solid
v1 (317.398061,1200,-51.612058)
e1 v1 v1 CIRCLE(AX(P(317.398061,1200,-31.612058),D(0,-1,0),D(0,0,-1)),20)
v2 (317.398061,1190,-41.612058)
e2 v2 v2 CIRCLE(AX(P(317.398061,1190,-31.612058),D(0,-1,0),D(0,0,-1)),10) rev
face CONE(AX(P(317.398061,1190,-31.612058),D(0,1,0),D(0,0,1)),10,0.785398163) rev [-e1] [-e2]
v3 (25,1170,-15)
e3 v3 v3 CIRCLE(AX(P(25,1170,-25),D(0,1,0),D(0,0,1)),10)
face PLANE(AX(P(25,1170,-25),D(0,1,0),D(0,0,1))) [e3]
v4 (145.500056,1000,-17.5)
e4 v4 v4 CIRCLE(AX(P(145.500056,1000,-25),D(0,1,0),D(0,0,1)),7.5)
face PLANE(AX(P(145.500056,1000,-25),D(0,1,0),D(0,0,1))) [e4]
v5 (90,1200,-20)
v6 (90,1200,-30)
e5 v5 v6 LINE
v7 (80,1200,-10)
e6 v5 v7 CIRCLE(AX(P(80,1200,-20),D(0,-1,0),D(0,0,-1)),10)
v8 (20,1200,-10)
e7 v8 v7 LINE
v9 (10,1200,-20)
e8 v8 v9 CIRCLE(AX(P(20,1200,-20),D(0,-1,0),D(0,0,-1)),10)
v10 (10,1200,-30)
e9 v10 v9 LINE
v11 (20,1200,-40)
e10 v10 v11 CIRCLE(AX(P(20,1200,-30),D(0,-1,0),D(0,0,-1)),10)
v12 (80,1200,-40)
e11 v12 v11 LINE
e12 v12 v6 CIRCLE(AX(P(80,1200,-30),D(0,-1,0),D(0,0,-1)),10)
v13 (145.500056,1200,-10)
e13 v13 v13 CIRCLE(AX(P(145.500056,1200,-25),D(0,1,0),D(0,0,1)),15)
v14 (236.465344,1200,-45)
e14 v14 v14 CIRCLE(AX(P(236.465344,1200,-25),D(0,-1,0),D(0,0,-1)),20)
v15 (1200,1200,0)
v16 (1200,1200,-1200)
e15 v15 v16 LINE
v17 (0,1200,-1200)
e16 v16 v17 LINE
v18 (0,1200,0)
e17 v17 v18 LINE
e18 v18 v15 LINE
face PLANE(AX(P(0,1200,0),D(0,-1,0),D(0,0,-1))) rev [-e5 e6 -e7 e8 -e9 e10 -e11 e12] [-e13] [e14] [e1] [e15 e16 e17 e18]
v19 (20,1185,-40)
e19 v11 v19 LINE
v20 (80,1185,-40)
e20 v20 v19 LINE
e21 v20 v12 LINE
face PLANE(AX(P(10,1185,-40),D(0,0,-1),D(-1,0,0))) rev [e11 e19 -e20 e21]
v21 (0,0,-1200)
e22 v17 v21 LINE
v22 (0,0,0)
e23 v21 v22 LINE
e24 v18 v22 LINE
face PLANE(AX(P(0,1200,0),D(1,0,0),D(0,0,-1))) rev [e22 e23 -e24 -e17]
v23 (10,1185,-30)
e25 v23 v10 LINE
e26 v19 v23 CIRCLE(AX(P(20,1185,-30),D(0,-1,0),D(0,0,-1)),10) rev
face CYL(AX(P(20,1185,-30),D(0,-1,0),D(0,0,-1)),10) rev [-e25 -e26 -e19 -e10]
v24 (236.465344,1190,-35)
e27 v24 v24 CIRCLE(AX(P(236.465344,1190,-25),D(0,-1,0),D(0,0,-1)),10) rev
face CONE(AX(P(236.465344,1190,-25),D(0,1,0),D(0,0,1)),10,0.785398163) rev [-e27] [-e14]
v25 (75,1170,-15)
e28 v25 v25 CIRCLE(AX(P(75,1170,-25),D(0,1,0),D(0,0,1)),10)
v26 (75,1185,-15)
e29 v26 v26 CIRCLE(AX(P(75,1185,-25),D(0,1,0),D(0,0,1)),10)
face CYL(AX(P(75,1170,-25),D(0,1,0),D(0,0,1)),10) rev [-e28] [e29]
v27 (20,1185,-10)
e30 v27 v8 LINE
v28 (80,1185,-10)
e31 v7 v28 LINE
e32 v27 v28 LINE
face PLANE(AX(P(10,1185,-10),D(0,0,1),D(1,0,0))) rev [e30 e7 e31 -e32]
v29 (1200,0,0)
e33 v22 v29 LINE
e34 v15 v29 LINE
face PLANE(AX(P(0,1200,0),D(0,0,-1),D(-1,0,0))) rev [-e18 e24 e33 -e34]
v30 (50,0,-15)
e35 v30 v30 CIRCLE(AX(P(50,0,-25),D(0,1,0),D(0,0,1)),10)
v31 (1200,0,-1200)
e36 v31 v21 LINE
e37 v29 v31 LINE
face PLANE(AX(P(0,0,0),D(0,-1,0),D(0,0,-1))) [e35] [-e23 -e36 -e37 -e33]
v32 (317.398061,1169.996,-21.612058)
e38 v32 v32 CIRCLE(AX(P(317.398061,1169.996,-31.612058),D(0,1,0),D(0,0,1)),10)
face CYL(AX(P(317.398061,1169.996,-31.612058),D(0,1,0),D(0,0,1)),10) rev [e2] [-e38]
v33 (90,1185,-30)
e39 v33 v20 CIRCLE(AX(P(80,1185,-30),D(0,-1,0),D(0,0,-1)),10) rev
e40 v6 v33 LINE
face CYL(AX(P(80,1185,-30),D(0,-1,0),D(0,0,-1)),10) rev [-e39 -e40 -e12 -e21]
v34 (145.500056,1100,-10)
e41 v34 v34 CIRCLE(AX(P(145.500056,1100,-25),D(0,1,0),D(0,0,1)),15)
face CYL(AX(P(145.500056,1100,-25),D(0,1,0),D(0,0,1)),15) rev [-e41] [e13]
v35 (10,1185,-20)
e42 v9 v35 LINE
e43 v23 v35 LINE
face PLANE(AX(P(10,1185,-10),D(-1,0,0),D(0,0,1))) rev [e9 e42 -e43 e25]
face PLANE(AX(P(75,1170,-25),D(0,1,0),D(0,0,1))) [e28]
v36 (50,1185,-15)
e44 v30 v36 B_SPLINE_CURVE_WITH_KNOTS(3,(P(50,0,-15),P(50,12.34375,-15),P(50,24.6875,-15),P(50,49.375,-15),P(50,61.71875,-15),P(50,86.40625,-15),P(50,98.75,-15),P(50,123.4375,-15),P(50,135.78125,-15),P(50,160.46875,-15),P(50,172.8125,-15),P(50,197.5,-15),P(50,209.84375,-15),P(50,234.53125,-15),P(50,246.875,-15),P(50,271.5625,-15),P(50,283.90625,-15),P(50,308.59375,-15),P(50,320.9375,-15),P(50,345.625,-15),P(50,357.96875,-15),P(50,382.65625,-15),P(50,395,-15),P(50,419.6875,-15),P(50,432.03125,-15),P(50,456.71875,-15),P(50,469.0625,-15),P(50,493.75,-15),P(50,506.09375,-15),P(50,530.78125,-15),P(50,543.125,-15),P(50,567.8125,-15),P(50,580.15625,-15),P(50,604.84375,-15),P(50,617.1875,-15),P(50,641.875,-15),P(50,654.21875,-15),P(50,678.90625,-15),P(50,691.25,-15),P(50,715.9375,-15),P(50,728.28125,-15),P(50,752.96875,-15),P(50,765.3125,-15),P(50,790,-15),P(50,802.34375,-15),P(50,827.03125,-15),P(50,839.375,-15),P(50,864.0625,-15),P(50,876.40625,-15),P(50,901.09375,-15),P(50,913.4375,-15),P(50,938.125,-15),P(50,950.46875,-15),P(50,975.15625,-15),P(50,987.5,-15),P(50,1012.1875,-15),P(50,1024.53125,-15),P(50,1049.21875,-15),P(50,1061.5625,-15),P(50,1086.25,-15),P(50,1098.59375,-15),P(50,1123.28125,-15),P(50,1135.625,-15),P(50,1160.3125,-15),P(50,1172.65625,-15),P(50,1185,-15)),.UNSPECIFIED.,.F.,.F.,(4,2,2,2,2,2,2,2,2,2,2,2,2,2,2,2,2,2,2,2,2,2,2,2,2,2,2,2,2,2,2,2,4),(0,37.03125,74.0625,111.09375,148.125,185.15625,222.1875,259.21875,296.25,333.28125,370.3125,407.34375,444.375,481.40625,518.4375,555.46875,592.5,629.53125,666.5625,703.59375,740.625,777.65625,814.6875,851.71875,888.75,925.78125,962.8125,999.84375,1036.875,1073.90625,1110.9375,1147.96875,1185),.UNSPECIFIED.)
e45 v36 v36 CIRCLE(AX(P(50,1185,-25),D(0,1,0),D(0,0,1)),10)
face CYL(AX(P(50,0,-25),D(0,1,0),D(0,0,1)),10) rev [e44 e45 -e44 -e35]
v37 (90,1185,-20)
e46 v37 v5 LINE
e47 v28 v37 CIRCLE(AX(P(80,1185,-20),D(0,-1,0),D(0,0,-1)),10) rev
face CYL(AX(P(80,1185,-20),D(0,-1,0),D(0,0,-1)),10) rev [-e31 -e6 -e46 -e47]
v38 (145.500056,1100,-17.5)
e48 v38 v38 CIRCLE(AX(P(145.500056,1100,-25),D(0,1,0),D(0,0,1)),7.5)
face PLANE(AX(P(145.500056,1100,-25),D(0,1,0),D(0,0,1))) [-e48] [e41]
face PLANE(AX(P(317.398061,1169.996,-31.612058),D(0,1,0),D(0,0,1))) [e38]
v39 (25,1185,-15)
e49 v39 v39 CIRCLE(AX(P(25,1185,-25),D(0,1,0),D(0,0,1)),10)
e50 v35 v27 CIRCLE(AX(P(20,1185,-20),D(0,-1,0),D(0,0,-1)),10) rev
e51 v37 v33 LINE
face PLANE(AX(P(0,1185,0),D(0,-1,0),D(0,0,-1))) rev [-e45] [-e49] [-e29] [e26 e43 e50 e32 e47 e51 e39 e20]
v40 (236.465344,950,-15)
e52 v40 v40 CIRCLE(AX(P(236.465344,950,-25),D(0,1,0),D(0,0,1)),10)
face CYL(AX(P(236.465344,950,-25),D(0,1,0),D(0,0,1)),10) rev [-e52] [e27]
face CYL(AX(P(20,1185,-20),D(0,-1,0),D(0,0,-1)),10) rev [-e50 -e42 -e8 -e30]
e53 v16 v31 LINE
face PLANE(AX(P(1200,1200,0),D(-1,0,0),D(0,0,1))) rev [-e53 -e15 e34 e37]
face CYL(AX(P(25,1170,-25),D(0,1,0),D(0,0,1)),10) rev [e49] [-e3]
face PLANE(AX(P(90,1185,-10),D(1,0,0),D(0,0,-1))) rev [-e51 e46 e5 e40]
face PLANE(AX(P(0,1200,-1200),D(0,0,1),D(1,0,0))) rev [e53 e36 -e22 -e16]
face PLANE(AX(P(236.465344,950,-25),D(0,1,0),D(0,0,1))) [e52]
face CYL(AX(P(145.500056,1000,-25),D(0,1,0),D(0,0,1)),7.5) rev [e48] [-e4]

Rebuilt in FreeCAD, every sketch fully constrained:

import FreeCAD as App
import Part
import Sketcher
from FreeCAD import Vector
Q = App.Units.Quantity


def edges_at(feature, points):
    """Names of the edges that pass closest to the given points."""
    edges = feature.Shape.Edges
    near = lambda p: min(range(len(edges)), key=lambda i: edges[i].distToShape(Part.Vertex(*p))[0])
    return sorted({f"Edge{near(p) + 1}" for p in points})

doc = App.newDocument("Part")
params = doc.addObject("Spreadsheet::Sheet", "Params")
for row, (alias, value) in enumerate([
    ("sketch1_width", "1200 mm"),
    ("pad1_length", "1200 mm"),
    ("sketch2_width", "80 mm"),
    ("sketch2_height", "30 mm"),
    ("pocket1_length", "15 mm"),
    ("fillet_radius", "10 mm"),
    ("sketch3_diameter", "20 mm"),
    ("pocket2_length", "15 mm"),
    ("sketch4_diameter", "20 mm"),
    ("sketch5_diameter", "30 mm"),
    ("pocket4_length", "100 mm"),
    ("sketch6_diameter", "15 mm"),
    ("pocket5_length", "100 mm"),
    ("sketch7_diameter", "20 mm"),
    ("pocket6_length", "250 mm"),
    ("chamfer_size", "10 mm"),
    ("sketch8_diameter", "20 mm"),
    ("pocket7_length", "30.004 mm"),
    ("chamfer2_size", "10 mm"),
], start=1):
    params.set(f"A{row}", alias)
    params.set(f"B{row}", "=" + value)
    params.setAlias(f"B{row}", alias)

body = doc.addObject("PartDesign::Body", "Body")

sketch1 = doc.addObject("Sketcher::SketchObject", "Sketch")
body.addObject(sketch1)
sketch1.AttachmentSupport = (doc.XZ_Plane, [""])
sketch1.MapMode = "FlatFace"
sketch1.addGeometry([
    Part.LineSegment(Vector(0, -1200, 0), Vector(0, 0, 0)),
    Part.LineSegment(Vector(0, 0, 0), Vector(1200, 0, 0)),
    Part.LineSegment(Vector(1200, 0, 0), Vector(1200, -1200, 0)),
    Part.LineSegment(Vector(1200, -1200, 0), Vector(0, -1200, 0)),
], False)
sketch1.addConstraint([
    Sketcher.Constraint("Coincident", 0, 2, 1, 1),
    Sketcher.Constraint("Coincident", 1, 2, 2, 1),
    Sketcher.Constraint("Coincident", 2, 2, 3, 1),
    Sketcher.Constraint("Coincident", 3, 2, 0, 1),
    Sketcher.Constraint("Vertical", 0),
    Sketcher.Constraint("Horizontal", 1),
    Sketcher.Constraint("Vertical", 2),
    Sketcher.Constraint("Horizontal", 3),
    Sketcher.Constraint("Coincident", 0, 2, -1, 1),
    Sketcher.Constraint("Equal", 3, 0),
    Sketcher.Constraint("DistanceX", 1, 1, 1, 2, Q("1200 mm")),
])
sketch1.setExpression("Constraints[10]", "Params.sketch1_width")
pad1 = doc.addObject("PartDesign::Pad", "Pad")
body.addObject(pad1)
pad1.Profile = sketch1
pad1.setExpression("Length", "Params.pad1_length")
pad1.Reversed = True

sketch2 = doc.addObject("Sketcher::SketchObject", "Sketch001")
body.addObject(sketch2)
sketch2.AttachmentSupport = (doc.XZ_Plane, [""])
sketch2.MapMode = "FlatFace"
sketch2.AttachmentOffset = App.Placement(Vector(0, 0, -1200), App.Rotation())
sketch2.addGeometry([
    Part.LineSegment(Vector(10, -40, 0), Vector(10, -10, 0)),
    Part.LineSegment(Vector(10, -10, 0), Vector(90, -10, 0)),
    Part.LineSegment(Vector(90, -10, 0), Vector(90, -40, 0)),
    Part.LineSegment(Vector(90, -40, 0), Vector(10, -40, 0)),
], False)
sketch2.addConstraint([
    Sketcher.Constraint("Coincident", 0, 2, 1, 1),
    Sketcher.Constraint("Coincident", 1, 2, 2, 1),
    Sketcher.Constraint("Coincident", 2, 2, 3, 1),
    Sketcher.Constraint("Coincident", 3, 2, 0, 1),
    Sketcher.Constraint("Vertical", 0),
    Sketcher.Constraint("Horizontal", 1),
    Sketcher.Constraint("Vertical", 2),
    Sketcher.Constraint("Horizontal", 3),
    Sketcher.Constraint("DistanceX", 1, 1, 1, 2, Q("80 mm")),
    Sketcher.Constraint("DistanceY", 0, 1, 0, 2, Q("30 mm")),
    Sketcher.Constraint("DistanceX", -1, 1, 0, 2, Q("10 mm")),
    Sketcher.Constraint("DistanceY", 0, 2, -1, 1, Q("10 mm")),
])
sketch2.setExpression("Constraints[8]", "Params.sketch2_width")
sketch2.setExpression("Constraints[9]", "Params.sketch2_height")
pocket1 = doc.addObject("PartDesign::Pocket", "Pocket")
body.addObject(pocket1)
pocket1.Profile = sketch2
pocket1.setExpression("Length", "Params.pocket1_length")
pocket1.Reversed = True
doc.recompute()

fillet = doc.addObject("PartDesign::Fillet", "Fillet")
body.addObject(fillet)
fillet.Base = (pocket1, edges_at(pocket1, [
    (10, 1192.5, -10),
    (10, 1192.5, -40),
    (90, 1192.5, -40),
    (90, 1192.5, -10),
]))
fillet.setExpression("Radius", "Params.fillet_radius")

sketch3 = doc.addObject("Sketcher::SketchObject", "Sketch002")
body.addObject(sketch3)
sketch3.AttachmentSupport = (doc.XZ_Plane, [""])
sketch3.MapMode = "FlatFace"
sketch3.AttachmentOffset = App.Placement(Vector(0, 0, -1185), App.Rotation())
sketch3.addGeometry([
    Part.Circle(Vector(25, -25, 0), Vector(0, 0, 1), 10),
    Part.Circle(Vector(75, -25, 0), Vector(0, 0, 1), 10),
], False)
sketch3.addConstraint([
    Sketcher.Constraint("Equal", 0, 1),
    Sketcher.Constraint("Horizontal", 0, 3, 1, 3),
    Sketcher.Constraint("Diameter", 0, Q("20 mm")),
    Sketcher.Constraint("DistanceX", -1, 1, 0, 3, Q("25 mm")),
    Sketcher.Constraint("DistanceY", 0, 3, -1, 1, Q("25 mm")),
    Sketcher.Constraint("DistanceX", -1, 1, 1, 3, Q("75 mm")),
])
sketch3.setExpression("Constraints[2]", "Params.sketch3_diameter")
pocket2 = doc.addObject("PartDesign::Pocket", "Pocket001")
body.addObject(pocket2)
pocket2.Profile = sketch3
pocket2.setExpression("Length", "Params.pocket2_length")
pocket2.Reversed = True

sketch4 = doc.addObject("Sketcher::SketchObject", "Sketch003")
body.addObject(sketch4)
sketch4.AttachmentSupport = (doc.XZ_Plane, [""])
sketch4.MapMode = "FlatFace"
sketch4.AttachmentOffset = App.Placement(Vector(0, 0, -1185), App.Rotation())
sketch4.addGeometry(Part.Circle(Vector(50, -25, 0), Vector(0, 0, 1), 10), False)
sketch4.addConstraint([
    Sketcher.Constraint("Diameter", 0, Q("20 mm")),
    Sketcher.Constraint("DistanceX", -1, 1, 0, 3, Q("50 mm")),
    Sketcher.Constraint("DistanceY", 0, 3, -1, 1, Q("25 mm")),
])
sketch4.setExpression("Constraints[0]", "Params.sketch4_diameter")
pocket3 = doc.addObject("PartDesign::Pocket", "Pocket002")
body.addObject(pocket3)
pocket3.Profile = sketch4
pocket3.Type = "ThroughAll"
pocket3.Reversed = True

sketch5 = doc.addObject("Sketcher::SketchObject", "Sketch004")
body.addObject(sketch5)
sketch5.AttachmentSupport = (doc.XZ_Plane, [""])
sketch5.MapMode = "FlatFace"
sketch5.AttachmentOffset = App.Placement(Vector(0, 0, -1200), App.Rotation())
sketch5.addGeometry(Part.Circle(Vector(146, -25, 0), Vector(0, 0, 1), 15), False)
sketch5.addConstraint([
    Sketcher.Constraint("Diameter", 0, Q("30 mm")),
    Sketcher.Constraint("DistanceY", 0, 3, -1, 1, Q("25 mm")),
    Sketcher.Constraint("DistanceX", -1, 1, 0, 3, Q("145.500056 mm")),
])
sketch5.setExpression("Constraints[0]", "Params.sketch5_diameter")
pocket4 = doc.addObject("PartDesign::Pocket", "Pocket003")
body.addObject(pocket4)
pocket4.Profile = sketch5
pocket4.setExpression("Length", "Params.pocket4_length")
pocket4.Reversed = True

sketch6 = doc.addObject("Sketcher::SketchObject", "Sketch005")
body.addObject(sketch6)
sketch6.AttachmentSupport = (doc.XZ_Plane, [""])
sketch6.MapMode = "FlatFace"
sketch6.AttachmentOffset = App.Placement(Vector(0, 0, -1100), App.Rotation())
sketch6.addGeometry(Part.Circle(Vector(146, -25, 0), Vector(0, 0, 1), 8), False)
sketch6.addConstraint([
    Sketcher.Constraint("Diameter", 0, Q("15 mm")),
    Sketcher.Constraint("DistanceY", 0, 3, -1, 1, Q("25 mm")),
    Sketcher.Constraint("DistanceX", -1, 1, 0, 3, Q("145.500056 mm")),
])
sketch6.setExpression("Constraints[0]", "Params.sketch6_diameter")
pocket5 = doc.addObject("PartDesign::Pocket", "Pocket004")
body.addObject(pocket5)
pocket5.Profile = sketch6
pocket5.setExpression("Length", "Params.pocket5_length")
pocket5.Reversed = True

sketch7 = doc.addObject("Sketcher::SketchObject", "Sketch006")
body.addObject(sketch7)
sketch7.AttachmentSupport = (doc.XZ_Plane, [""])
sketch7.MapMode = "FlatFace"
sketch7.AttachmentOffset = App.Placement(Vector(0, 0, -1200), App.Rotation())
sketch7.addGeometry(Part.Circle(Vector(236, -25, 0), Vector(0, 0, 1), 10), False)
sketch7.addConstraint([
    Sketcher.Constraint("Diameter", 0, Q("20 mm")),
    Sketcher.Constraint("DistanceY", 0, 3, -1, 1, Q("25 mm")),
    Sketcher.Constraint("DistanceX", -1, 1, 0, 3, Q("236.465344 mm")),
])
sketch7.setExpression("Constraints[0]", "Params.sketch7_diameter")
pocket6 = doc.addObject("PartDesign::Pocket", "Pocket005")
body.addObject(pocket6)
pocket6.Profile = sketch7
pocket6.setExpression("Length", "Params.pocket6_length")
pocket6.Reversed = True
doc.recompute()

chamfer = doc.addObject("PartDesign::Chamfer", "Chamfer")
body.addObject(chamfer)
chamfer.Base = (pocket6, edges_at(pocket6, [(236.465, 1200, -35)]))
chamfer.setExpression("Size", "Params.chamfer_size")

sketch8 = doc.addObject("Sketcher::SketchObject", "Sketch007")
body.addObject(sketch8)
sketch8.AttachmentSupport = (doc.XZ_Plane, [""])
sketch8.MapMode = "FlatFace"
sketch8.AttachmentOffset = App.Placement(Vector(0, 0, -1200), App.Rotation())
sketch8.addGeometry(Part.Circle(Vector(317, -32, 0), Vector(0, 0, 1), 10), False)
sketch8.addConstraint([
    Sketcher.Constraint("Diameter", 0, Q("20 mm")),
    Sketcher.Constraint("DistanceX", -1, 1, 0, 3, Q("317.398061 mm")),
    Sketcher.Constraint("DistanceY", 0, 3, -1, 1, Q("31.612058 mm")),
])
sketch8.setExpression("Constraints[0]", "Params.sketch8_diameter")
pocket7 = doc.addObject("PartDesign::Pocket", "Pocket006")
body.addObject(pocket7)
pocket7.Profile = sketch8
pocket7.setExpression("Length", "Params.pocket7_length")
pocket7.Reversed = True
doc.recompute()

chamfer2 = doc.addObject("PartDesign::Chamfer", "Chamfer001")
body.addObject(chamfer2)
chamfer2.Base = (pocket7, edges_at(pocket7, [(317.398, 1200, -41.612)]))
chamfer2.setExpression("Size", "Params.chamfer2_size")

doc.recompute()
